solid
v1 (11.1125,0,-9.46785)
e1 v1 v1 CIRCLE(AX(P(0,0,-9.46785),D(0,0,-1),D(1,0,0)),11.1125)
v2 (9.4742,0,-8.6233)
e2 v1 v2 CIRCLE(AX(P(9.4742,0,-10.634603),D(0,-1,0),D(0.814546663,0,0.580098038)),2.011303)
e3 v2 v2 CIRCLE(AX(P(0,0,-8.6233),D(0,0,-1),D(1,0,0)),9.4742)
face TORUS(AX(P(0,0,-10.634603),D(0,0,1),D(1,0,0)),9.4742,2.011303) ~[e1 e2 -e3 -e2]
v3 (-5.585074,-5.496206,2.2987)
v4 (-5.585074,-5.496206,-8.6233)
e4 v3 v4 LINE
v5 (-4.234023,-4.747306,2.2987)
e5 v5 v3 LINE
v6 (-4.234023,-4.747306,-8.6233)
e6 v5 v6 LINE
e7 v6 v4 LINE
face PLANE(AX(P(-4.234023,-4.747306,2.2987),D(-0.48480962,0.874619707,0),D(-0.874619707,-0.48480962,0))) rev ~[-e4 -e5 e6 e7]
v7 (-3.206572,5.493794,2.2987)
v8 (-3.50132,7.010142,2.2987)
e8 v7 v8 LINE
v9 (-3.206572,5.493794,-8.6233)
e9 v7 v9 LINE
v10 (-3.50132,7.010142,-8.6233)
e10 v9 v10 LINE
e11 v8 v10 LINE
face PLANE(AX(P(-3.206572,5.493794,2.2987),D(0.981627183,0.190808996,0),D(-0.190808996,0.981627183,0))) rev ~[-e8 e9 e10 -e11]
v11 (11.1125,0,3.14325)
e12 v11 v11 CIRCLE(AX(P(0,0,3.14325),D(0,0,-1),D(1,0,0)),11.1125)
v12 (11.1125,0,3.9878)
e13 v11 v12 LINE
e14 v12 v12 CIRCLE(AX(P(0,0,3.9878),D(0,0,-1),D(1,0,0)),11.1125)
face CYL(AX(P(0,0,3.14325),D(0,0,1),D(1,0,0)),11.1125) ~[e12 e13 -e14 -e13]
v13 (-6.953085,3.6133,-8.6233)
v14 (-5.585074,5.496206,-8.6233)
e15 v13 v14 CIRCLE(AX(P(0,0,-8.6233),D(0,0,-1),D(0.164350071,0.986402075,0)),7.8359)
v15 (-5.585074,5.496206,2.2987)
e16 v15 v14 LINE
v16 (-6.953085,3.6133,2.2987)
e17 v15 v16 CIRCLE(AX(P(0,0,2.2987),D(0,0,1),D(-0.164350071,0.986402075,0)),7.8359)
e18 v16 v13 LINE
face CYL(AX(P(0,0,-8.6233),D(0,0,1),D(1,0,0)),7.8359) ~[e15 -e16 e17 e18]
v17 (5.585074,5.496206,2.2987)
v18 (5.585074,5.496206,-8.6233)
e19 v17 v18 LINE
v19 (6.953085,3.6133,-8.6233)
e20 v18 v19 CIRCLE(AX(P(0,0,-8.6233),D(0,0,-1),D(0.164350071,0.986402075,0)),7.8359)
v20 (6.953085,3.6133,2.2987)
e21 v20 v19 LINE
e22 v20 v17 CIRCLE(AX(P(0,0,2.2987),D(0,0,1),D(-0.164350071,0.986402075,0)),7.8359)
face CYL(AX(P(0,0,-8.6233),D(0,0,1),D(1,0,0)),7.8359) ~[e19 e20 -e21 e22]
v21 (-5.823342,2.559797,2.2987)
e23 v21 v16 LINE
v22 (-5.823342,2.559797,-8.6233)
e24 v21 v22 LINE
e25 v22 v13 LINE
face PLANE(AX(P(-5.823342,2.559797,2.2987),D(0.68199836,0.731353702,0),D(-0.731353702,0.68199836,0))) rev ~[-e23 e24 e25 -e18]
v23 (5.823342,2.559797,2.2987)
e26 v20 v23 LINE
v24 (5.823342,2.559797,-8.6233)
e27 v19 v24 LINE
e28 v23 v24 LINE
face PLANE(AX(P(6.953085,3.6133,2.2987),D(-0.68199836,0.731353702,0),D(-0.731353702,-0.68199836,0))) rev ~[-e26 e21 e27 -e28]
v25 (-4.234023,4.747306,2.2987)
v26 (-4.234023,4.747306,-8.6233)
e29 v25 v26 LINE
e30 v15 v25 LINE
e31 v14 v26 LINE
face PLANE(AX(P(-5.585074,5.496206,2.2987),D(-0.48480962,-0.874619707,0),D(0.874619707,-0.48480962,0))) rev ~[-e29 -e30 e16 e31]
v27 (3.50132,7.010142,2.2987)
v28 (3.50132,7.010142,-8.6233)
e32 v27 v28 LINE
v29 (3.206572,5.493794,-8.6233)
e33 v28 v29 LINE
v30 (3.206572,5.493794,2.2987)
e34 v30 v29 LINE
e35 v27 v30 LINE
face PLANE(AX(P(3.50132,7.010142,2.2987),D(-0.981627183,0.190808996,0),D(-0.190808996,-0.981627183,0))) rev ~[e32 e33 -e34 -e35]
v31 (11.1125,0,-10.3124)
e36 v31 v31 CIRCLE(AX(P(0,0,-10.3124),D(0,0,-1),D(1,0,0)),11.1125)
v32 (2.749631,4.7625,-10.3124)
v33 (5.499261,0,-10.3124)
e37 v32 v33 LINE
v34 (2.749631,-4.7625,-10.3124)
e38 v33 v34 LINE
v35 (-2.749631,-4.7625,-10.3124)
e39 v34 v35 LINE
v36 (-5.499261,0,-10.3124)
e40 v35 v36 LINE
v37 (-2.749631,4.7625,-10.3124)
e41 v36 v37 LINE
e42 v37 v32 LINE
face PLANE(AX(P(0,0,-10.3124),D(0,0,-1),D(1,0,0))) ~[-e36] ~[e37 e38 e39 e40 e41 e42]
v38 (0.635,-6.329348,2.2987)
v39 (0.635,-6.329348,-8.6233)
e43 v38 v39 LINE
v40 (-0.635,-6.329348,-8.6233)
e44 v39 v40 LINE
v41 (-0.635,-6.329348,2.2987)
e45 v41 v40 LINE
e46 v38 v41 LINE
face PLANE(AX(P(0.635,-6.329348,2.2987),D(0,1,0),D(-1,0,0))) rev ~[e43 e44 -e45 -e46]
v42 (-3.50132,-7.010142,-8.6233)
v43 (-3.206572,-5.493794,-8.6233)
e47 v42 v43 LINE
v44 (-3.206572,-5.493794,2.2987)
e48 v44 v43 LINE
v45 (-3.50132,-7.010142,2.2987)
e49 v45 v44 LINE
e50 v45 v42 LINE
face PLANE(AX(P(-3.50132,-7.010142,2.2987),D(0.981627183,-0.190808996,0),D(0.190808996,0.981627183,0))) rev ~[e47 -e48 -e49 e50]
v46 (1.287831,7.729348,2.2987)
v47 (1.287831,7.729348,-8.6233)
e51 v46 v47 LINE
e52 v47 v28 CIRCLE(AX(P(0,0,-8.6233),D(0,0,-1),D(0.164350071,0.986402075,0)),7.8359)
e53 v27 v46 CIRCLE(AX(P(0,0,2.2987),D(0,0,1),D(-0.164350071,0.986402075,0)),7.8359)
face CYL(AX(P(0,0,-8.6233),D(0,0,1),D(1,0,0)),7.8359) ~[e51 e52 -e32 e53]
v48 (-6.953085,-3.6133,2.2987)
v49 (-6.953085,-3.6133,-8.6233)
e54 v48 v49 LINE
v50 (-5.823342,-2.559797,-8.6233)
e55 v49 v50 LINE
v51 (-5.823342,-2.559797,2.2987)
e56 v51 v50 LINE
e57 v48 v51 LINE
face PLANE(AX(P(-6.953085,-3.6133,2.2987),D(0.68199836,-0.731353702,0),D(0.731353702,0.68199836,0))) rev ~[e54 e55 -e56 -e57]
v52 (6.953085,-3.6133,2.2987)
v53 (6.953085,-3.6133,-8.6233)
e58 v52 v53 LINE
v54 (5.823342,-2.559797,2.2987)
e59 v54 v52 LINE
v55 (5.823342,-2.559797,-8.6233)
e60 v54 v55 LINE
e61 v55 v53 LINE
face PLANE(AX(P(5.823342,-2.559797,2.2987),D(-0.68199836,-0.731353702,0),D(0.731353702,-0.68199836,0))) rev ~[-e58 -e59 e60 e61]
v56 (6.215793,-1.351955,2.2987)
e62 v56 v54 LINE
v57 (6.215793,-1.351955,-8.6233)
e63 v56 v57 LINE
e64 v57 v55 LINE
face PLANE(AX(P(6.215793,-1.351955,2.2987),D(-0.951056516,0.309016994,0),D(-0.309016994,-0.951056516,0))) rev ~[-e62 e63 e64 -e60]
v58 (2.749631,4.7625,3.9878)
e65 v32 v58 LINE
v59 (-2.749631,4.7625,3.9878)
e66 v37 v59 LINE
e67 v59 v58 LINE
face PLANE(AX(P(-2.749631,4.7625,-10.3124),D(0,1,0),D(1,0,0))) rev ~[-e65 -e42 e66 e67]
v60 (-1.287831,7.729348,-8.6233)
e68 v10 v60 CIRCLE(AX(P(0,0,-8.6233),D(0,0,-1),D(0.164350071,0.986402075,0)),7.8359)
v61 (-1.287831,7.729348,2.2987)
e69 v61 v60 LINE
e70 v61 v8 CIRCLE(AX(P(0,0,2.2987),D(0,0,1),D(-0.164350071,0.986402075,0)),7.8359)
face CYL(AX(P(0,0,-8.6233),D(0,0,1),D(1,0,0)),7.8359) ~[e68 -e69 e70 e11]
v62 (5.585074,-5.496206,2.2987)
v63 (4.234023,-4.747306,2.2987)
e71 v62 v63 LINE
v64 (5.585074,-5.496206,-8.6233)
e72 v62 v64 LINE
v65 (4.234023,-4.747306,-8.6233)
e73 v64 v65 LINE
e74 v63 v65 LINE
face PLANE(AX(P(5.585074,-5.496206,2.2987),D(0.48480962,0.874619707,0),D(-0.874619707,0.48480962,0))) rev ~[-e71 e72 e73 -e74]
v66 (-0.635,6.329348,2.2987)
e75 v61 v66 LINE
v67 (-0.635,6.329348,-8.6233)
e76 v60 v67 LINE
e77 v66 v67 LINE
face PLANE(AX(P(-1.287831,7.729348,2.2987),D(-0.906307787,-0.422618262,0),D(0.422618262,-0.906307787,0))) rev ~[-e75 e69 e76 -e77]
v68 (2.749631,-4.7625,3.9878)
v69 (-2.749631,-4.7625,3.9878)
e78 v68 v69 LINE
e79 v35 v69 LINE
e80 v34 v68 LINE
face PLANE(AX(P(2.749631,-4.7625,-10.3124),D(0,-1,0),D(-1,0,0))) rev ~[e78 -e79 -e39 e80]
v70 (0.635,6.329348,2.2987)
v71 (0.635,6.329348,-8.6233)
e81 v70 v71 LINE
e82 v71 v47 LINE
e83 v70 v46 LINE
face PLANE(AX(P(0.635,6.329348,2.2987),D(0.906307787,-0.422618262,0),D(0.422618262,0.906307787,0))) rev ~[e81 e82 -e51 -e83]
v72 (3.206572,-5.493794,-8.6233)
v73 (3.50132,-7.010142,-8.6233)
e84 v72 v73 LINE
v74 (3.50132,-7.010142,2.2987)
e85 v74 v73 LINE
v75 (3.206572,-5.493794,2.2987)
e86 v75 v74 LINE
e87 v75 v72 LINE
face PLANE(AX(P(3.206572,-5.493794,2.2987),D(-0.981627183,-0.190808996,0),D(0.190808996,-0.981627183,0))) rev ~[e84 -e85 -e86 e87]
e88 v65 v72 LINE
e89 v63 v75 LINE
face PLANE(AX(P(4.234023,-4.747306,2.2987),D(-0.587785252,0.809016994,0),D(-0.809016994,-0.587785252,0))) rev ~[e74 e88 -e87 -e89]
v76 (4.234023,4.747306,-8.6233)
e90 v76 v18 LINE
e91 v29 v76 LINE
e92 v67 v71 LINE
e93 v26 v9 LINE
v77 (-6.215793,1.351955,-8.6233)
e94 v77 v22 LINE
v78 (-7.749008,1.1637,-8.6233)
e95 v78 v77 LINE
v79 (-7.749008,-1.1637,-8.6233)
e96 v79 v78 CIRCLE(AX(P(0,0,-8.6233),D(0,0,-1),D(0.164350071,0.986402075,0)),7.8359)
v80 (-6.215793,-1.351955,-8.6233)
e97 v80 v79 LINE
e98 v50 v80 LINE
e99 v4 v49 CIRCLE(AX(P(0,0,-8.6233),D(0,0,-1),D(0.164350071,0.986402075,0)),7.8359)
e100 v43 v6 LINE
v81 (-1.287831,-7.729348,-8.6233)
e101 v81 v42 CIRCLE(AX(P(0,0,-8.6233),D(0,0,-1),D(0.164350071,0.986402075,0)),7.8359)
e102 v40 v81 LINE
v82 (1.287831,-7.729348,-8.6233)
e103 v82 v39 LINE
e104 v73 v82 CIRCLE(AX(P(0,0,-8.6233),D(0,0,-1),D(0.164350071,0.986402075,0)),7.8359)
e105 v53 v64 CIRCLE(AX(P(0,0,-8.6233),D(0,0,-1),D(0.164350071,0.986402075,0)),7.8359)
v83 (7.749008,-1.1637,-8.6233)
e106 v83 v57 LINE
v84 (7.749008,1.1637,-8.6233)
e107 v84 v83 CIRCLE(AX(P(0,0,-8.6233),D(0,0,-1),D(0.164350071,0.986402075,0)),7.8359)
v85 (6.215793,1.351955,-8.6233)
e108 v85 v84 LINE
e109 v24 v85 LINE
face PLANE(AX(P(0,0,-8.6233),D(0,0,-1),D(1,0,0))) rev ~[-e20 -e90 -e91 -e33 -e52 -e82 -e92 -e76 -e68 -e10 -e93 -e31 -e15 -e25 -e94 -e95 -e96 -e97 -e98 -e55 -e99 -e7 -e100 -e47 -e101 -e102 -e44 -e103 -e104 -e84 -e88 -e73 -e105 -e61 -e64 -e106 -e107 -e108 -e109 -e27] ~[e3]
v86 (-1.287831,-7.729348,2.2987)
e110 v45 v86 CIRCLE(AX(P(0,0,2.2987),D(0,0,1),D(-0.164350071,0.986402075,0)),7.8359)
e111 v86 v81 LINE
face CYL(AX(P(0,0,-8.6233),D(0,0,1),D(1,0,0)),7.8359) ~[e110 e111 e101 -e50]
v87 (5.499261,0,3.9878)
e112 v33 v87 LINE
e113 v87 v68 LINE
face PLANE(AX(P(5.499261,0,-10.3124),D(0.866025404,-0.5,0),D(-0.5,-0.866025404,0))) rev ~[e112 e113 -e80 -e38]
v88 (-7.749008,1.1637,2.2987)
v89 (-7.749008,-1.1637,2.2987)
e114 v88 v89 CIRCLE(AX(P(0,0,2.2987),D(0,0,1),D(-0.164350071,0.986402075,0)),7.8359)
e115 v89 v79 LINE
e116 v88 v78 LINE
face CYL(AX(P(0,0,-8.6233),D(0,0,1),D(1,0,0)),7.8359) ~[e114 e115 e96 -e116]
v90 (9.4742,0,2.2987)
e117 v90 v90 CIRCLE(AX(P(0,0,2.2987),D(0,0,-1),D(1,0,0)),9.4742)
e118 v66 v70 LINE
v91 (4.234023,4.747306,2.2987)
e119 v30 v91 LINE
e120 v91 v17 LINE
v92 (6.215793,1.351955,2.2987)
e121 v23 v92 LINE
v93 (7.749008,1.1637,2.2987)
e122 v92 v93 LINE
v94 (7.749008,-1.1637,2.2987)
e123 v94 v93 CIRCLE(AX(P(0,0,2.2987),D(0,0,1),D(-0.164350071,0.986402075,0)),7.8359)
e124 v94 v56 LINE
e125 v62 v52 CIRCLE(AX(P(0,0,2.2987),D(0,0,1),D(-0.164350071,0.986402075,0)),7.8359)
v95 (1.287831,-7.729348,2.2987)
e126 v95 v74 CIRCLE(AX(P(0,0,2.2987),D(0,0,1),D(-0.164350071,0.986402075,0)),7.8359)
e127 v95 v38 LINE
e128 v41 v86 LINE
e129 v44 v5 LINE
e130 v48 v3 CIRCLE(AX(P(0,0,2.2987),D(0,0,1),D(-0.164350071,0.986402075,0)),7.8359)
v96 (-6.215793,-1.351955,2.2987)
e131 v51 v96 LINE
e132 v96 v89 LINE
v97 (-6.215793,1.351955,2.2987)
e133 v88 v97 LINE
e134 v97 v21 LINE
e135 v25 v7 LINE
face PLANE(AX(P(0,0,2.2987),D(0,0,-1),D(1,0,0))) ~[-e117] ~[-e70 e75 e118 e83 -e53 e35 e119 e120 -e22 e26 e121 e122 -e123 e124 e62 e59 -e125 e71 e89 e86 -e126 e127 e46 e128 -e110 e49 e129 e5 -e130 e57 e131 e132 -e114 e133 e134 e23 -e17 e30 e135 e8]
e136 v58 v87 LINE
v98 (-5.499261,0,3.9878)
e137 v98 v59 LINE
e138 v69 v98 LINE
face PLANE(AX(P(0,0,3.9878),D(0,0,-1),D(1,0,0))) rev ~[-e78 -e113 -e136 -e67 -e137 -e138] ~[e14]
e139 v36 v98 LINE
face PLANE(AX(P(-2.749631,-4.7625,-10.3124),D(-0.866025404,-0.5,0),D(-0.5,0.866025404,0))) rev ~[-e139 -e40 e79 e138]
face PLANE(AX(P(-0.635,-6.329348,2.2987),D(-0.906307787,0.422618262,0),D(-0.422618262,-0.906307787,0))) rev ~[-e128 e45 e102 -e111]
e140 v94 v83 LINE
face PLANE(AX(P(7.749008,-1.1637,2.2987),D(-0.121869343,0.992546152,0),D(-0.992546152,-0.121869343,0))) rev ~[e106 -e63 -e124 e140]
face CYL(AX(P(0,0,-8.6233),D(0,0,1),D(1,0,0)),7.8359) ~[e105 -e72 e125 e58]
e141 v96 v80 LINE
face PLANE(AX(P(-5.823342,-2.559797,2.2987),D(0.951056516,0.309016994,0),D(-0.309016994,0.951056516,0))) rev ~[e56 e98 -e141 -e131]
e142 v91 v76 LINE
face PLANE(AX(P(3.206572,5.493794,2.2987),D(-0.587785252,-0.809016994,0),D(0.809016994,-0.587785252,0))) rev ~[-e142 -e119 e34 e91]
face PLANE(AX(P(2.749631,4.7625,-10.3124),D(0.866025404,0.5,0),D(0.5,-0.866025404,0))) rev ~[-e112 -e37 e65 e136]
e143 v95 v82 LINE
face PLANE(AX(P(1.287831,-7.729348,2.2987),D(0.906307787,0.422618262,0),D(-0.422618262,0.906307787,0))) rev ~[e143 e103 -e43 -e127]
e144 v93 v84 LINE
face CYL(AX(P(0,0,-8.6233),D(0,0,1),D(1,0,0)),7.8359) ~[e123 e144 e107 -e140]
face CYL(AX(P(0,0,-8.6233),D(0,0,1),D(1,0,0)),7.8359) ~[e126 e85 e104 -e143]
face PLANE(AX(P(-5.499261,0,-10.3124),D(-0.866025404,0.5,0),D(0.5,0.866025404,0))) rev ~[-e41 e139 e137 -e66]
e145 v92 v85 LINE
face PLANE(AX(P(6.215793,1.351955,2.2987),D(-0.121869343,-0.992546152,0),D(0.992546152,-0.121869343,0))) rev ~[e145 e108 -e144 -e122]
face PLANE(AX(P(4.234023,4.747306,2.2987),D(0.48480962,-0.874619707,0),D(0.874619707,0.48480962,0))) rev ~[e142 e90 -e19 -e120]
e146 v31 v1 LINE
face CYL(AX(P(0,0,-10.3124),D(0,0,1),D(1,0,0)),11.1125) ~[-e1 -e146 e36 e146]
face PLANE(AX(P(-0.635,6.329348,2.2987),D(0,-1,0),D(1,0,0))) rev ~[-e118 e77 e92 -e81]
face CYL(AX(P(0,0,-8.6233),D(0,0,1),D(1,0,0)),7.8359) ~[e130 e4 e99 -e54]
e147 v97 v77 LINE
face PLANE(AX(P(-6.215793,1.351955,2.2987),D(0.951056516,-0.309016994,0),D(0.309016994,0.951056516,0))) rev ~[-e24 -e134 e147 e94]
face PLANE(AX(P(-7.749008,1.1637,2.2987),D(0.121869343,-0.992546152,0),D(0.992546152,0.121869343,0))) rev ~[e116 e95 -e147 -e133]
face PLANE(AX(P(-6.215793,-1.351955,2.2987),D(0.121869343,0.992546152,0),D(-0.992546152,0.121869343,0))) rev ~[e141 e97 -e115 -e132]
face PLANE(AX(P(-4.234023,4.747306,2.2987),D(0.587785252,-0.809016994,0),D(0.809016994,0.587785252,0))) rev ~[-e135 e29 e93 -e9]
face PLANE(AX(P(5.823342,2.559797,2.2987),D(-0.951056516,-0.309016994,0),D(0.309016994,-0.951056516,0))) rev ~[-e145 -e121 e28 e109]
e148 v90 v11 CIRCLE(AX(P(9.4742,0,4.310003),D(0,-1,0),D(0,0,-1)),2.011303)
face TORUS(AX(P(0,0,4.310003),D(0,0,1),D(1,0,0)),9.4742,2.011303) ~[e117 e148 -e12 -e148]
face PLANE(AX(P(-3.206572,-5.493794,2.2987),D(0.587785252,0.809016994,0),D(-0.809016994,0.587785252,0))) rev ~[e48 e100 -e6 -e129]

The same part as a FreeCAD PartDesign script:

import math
import FreeCAD as App
import Part
import Sketcher

V = App.Vector
Q = App.Units.Quantity

doc = App.newDocument("Part")
params = doc.addObject("Spreadsheet::Sheet", "Params")
for row, (alias, value) in enumerate([
    ("sketch1_height", "0.43 in"),
    ("sketch1_height2", "0.563 in"),
    ("revolution_angle", "360 deg"),
    ("sketch2_width", "0.05 in"),
    ("pocket1_length", "0.43 in"),
    ("pocket2_length", "1.01 in"),
], start=1):
    params.set(f"A{row}", alias)
    params.set(f"B{row}", "=" + value)
    params.setAlias(f"B{row}", alias)

body = doc.addObject("PartDesign::Body", "Body")

sketch1 = doc.addObject("Sketcher::SketchObject", "Sketch")
body.addObject(sketch1)
sketch1.AttachmentSupport = (doc.YZ_Plane, [""])
sketch1.MapMode = "FlatFace"
sketch1.addGeometry(Part.LineSegment(V(2.5, 4, 0), V(2.5, -10.3, 0)), False)
sketch1.addGeometry(Part.LineSegment(V(2.5, -10.3, 0), V(11.1, -10.3, 0)), False)
sketch1.addGeometry(Part.LineSegment(V(11.1, -10.3, 0), V(11.1, -9.5, 0)), False)
sketch1.addGeometry(Part.ArcOfCircle(Part.Circle(V(9.5, -10.6, 0), V(0, 0, 1), 2), math.radians(35), math.radians(90)), False)
sketch1.addGeometry(Part.LineSegment(V(9.5, -8.6, 0), V(7.8, -8.6, 0)), False)
sketch1.addGeometry(Part.LineSegment(V(7.8, -8.6, 0), V(7.8, 2.3, 0)), False)
sketch1.addGeometry(Part.LineSegment(V(7.8, 2.3, 0), V(9.5, 2.3, 0)), False)
sketch1.addGeometry(Part.ArcOfCircle(Part.Circle(V(9.5, 4.3, 0), V(0, 0, 1), 2), math.radians(-90), math.radians(-35)), False)
sketch1.addGeometry(Part.LineSegment(V(11.1, 3.1, 0), V(11.1, 4, 0)), False)
sketch1.addGeometry(Part.LineSegment(V(11.1, 4, 0), V(2.5, 4, 0)), False)
sketch1.addConstraint(Sketcher.Constraint("Coincident", 0, 2, 1, 1))
sketch1.addConstraint(Sketcher.Constraint("Coincident", 1, 2, 2, 1))
sketch1.addConstraint(Sketcher.Constraint("Coincident", 2, 2, 3, 1))
sketch1.addConstraint(Sketcher.Constraint("Tangent", 3, 2, 4, 1))
sketch1.addConstraint(Sketcher.Constraint("Coincident", 4, 2, 5, 1))
sketch1.addConstraint(Sketcher.Constraint("Coincident", 5, 2, 6, 1))
sketch1.addConstraint(Sketcher.Constraint("Tangent", 6, 2, 7, 1))
sketch1.addConstraint(Sketcher.Constraint("Coincident", 7, 2, 8, 1))
sketch1.addConstraint(Sketcher.Constraint("Coincident", 8, 2, 9, 1))
sketch1.addConstraint(Sketcher.Constraint("Coincident", 9, 2, 0, 1))
sketch1.addConstraint(Sketcher.Constraint("Vertical", 0))
sketch1.addConstraint(Sketcher.Constraint("Horizontal", 1))
sketch1.addConstraint(Sketcher.Constraint("Vertical", 2))
sketch1.addConstraint(Sketcher.Constraint("Horizontal", 4))
sketch1.addConstraint(Sketcher.Constraint("Vertical", 5))
sketch1.addConstraint(Sketcher.Constraint("Horizontal", 6))
sketch1.addConstraint(Sketcher.Constraint("Vertical", 8))
sketch1.addConstraint(Sketcher.Constraint("Horizontal", 9))
sketch1.addConstraint(Sketcher.Constraint("Equal", 3, 7))
sketch1.addConstraint(Sketcher.Constraint("Vertical", 3, 3, 7, 3))
sketch1.addConstraint(Sketcher.Constraint("Vertical", 2, 2, 7, 2))
sketch1.addConstraint(Sketcher.Constraint("Equal", 2, 8))
sketch1.addConstraint(Sketcher.Constraint("DistanceY", 5, 1, 5, 2, Q("0.43 in")))
sketch1.addConstraint(Sketcher.Constraint("DistanceY", 0, 2, 0, 1, Q("0.563 in")))
sketch1.addConstraint(Sketcher.Constraint("DistanceX", 4, 2, 4, 1, Q("0.0645 in")))
sketch1.addConstraint(Sketcher.Constraint("DistanceX", -1, 1, 3, 3, Q("0.373 in")))
sketch1.addConstraint(Sketcher.Constraint("DistanceY", 0, 2, -1, 1, Q("0.406 in")))
sketch1.addConstraint(Sketcher.Constraint("DistanceX", -1, 1, 1, 2, Q("0.4375 in")))
sketch1.addConstraint(Sketcher.Constraint("DistanceX", 1, 1, 1, 2, 8.6125))
sketch1.addConstraint(Sketcher.Constraint("Radius", 3, 2.011303))
sketch1.setExpression("Constraints[22]", "Params.sketch1_height")
sketch1.setExpression("Constraints[23]", "Params.sketch1_height2")
revolution = doc.addObject("PartDesign::Revolution", "Revolution")
body.addObject(revolution)
revolution.Profile = sketch1
revolution.ReferenceAxis = (sketch1, ["V_Axis"])
revolution.setExpression("Angle", "Params.revolution_angle")

sketch2 = doc.addObject("Sketcher::SketchObject", "Sketch001")
body.addObject(sketch2)
sketch2.AttachmentSupport = (doc.XY_Plane, [""])
sketch2.MapMode = "FlatFace"
sketch2.AttachmentOffset = App.Placement(V(0, 0, 0.0905 * 25.4), App.Rotation())
sketch2.addGeometry(Part.LineSegment(V(-0.6, 6.3, 0), V(0.6, 6.3, 0)), False)
sketch2.addGeometry(Part.LineSegment(V(0.6, 6.3, 0), V(1.3, 7.7, 0)), False)
sketch2.addGeometry(Part.ArcOfCircle(Part.Circle(V(0, 0, 0), V(0, 0, 1), 7.8), math.radians(80.54), math.radians(99.46)), False)
sketch2.addGeometry(Part.LineSegment(V(-1.3, 7.7, 0), V(-0.6, 6.3, 0)), False)
sketch2.addConstraint(Sketcher.Constraint("Coincident", 0, 2, 1, 1))
sketch2.addConstraint(Sketcher.Constraint("Coincident", 1, 2, 2, 1))
sketch2.addConstraint(Sketcher.Constraint("Coincident", 2, 2, 3, 1))
sketch2.addConstraint(Sketcher.Constraint("Coincident", 3, 2, 0, 1))
sketch2.addConstraint(Sketcher.Constraint("Horizontal", 0))
sketch2.addConstraint(Sketcher.Constraint("Coincident", 2, 3, -1, 1))
sketch2.addConstraint(Sketcher.Constraint("Horizontal", 1, 2, 2, 2))
sketch2.addConstraint(Sketcher.Constraint("Equal", 1, 3))
sketch2.addConstraint(Sketcher.Constraint("Angle", 1, Q("65 deg")))
sketch2.addConstraint(Sketcher.Constraint("DistanceX", 0, 1, 0, 2, Q("0.05 in")))
sketch2.addConstraint(Sketcher.Constraint("Radius", 2, Q("0.3085 in")))
sketch2.addConstraint(Sketcher.Constraint("DistanceY", 0, 2, 1, 2, 1.4))
sketch2.setExpression("Constraints[9]", "Params.sketch2_width")
pocket1 = doc.addObject("PartDesign::Pocket", "Pocket")
body.addObject(pocket1)
pocket1.Profile = sketch2
pocket1.setExpression("Length", "Params.pocket1_length")
doc.recompute()

polarpattern = doc.addObject("PartDesign::PolarPattern", "PolarPattern")
body.addObject(polarpattern)
polarpattern.Originals = [pocket1]
polarpattern.Axis = (doc.Z_Axis, [""])
polarpattern.Angle = 360
polarpattern.Occurrences = 10
body.Tip = polarpattern

sketch3 = doc.addObject("Sketcher::SketchObject", "Sketch002")
body.addObject(sketch3)
sketch3.AttachmentSupport = (doc.XY_Plane, [""])
sketch3.MapMode = "FlatFace"
sketch3.AttachmentOffset = App.Placement(V(0, 0, -0.406 * 25.4), App.Rotation())
sketch3.addGeometry(Part.LineSegment(V(-5, 0, 0), V(-3, 5, 0)), False)
sketch3.addGeometry(Part.LineSegment(V(-3, 5, 0), V(3, 5, 0)), False)
sketch3.addGeometry(Part.LineSegment(V(3, 5, 0), V(5, 0, 0)), False)
sketch3.addGeometry(Part.LineSegment(V(5, 0, 0), V(3, -5, 0)), False)
sketch3.addGeometry(Part.LineSegment(V(3, -5, 0), V(-3, -5, 0)), False)
sketch3.addGeometry(Part.LineSegment(V(-3, -5, 0), V(-5, 0, 0)), False)
sketch3.addConstraint(Sketcher.Constraint("Coincident", 0, 2, 1, 1))
sketch3.addConstraint(Sketcher.Constraint("Coincident", 1, 2, 2, 1))
sketch3.addConstraint(Sketcher.Constraint("Coincident", 2, 2, 3, 1))
sketch3.addConstraint(Sketcher.Constraint("Coincident", 3, 2, 4, 1))
sketch3.addConstraint(Sketcher.Constraint("Coincident", 4, 2, 5, 1))
sketch3.addConstraint(Sketcher.Constraint("Coincident", 5, 2, 0, 1))
sketch3.addConstraint(Sketcher.Constraint("Horizontal", 1))
sketch3.addConstraint(Sketcher.Constraint("Horizontal", 4))
sketch3.addConstraint(Sketcher.Constraint("Symmetric", 0, 2, 3, 2, -1, 1))
sketch3.addConstraint(Sketcher.Constraint("Symmetric", 2, 2, 5, 2, -1, 1))
sketch3.addConstraint(Sketcher.Constraint("PointOnObject", 2, 2, -1))
sketch3.addConstraint(Sketcher.Constraint("Parallel", 2, 5))
sketch3.addConstraint(Sketcher.Constraint("Vertical", 1, 2, 3, 2))
sketch3.addConstraint(Sketcher.Constraint("Angle", 0, Q("60 deg")))
sketch3.addConstraint(Sketcher.Constraint("DistanceY", -1, 1, 0, 2, Q("0.1875 in")))
sketch3.addConstraint(Sketcher.Constraint("DistanceX", 1, 1, 1, 2, 5.499261))
pocket2 = doc.addObject("PartDesign::Pocket", "Pocket001")
body.addObject(pocket2)
pocket2.Profile = sketch3
pocket2.setExpression("Length", "Params.pocket2_length")
pocket2.Reversed = True

doc.recompute()
